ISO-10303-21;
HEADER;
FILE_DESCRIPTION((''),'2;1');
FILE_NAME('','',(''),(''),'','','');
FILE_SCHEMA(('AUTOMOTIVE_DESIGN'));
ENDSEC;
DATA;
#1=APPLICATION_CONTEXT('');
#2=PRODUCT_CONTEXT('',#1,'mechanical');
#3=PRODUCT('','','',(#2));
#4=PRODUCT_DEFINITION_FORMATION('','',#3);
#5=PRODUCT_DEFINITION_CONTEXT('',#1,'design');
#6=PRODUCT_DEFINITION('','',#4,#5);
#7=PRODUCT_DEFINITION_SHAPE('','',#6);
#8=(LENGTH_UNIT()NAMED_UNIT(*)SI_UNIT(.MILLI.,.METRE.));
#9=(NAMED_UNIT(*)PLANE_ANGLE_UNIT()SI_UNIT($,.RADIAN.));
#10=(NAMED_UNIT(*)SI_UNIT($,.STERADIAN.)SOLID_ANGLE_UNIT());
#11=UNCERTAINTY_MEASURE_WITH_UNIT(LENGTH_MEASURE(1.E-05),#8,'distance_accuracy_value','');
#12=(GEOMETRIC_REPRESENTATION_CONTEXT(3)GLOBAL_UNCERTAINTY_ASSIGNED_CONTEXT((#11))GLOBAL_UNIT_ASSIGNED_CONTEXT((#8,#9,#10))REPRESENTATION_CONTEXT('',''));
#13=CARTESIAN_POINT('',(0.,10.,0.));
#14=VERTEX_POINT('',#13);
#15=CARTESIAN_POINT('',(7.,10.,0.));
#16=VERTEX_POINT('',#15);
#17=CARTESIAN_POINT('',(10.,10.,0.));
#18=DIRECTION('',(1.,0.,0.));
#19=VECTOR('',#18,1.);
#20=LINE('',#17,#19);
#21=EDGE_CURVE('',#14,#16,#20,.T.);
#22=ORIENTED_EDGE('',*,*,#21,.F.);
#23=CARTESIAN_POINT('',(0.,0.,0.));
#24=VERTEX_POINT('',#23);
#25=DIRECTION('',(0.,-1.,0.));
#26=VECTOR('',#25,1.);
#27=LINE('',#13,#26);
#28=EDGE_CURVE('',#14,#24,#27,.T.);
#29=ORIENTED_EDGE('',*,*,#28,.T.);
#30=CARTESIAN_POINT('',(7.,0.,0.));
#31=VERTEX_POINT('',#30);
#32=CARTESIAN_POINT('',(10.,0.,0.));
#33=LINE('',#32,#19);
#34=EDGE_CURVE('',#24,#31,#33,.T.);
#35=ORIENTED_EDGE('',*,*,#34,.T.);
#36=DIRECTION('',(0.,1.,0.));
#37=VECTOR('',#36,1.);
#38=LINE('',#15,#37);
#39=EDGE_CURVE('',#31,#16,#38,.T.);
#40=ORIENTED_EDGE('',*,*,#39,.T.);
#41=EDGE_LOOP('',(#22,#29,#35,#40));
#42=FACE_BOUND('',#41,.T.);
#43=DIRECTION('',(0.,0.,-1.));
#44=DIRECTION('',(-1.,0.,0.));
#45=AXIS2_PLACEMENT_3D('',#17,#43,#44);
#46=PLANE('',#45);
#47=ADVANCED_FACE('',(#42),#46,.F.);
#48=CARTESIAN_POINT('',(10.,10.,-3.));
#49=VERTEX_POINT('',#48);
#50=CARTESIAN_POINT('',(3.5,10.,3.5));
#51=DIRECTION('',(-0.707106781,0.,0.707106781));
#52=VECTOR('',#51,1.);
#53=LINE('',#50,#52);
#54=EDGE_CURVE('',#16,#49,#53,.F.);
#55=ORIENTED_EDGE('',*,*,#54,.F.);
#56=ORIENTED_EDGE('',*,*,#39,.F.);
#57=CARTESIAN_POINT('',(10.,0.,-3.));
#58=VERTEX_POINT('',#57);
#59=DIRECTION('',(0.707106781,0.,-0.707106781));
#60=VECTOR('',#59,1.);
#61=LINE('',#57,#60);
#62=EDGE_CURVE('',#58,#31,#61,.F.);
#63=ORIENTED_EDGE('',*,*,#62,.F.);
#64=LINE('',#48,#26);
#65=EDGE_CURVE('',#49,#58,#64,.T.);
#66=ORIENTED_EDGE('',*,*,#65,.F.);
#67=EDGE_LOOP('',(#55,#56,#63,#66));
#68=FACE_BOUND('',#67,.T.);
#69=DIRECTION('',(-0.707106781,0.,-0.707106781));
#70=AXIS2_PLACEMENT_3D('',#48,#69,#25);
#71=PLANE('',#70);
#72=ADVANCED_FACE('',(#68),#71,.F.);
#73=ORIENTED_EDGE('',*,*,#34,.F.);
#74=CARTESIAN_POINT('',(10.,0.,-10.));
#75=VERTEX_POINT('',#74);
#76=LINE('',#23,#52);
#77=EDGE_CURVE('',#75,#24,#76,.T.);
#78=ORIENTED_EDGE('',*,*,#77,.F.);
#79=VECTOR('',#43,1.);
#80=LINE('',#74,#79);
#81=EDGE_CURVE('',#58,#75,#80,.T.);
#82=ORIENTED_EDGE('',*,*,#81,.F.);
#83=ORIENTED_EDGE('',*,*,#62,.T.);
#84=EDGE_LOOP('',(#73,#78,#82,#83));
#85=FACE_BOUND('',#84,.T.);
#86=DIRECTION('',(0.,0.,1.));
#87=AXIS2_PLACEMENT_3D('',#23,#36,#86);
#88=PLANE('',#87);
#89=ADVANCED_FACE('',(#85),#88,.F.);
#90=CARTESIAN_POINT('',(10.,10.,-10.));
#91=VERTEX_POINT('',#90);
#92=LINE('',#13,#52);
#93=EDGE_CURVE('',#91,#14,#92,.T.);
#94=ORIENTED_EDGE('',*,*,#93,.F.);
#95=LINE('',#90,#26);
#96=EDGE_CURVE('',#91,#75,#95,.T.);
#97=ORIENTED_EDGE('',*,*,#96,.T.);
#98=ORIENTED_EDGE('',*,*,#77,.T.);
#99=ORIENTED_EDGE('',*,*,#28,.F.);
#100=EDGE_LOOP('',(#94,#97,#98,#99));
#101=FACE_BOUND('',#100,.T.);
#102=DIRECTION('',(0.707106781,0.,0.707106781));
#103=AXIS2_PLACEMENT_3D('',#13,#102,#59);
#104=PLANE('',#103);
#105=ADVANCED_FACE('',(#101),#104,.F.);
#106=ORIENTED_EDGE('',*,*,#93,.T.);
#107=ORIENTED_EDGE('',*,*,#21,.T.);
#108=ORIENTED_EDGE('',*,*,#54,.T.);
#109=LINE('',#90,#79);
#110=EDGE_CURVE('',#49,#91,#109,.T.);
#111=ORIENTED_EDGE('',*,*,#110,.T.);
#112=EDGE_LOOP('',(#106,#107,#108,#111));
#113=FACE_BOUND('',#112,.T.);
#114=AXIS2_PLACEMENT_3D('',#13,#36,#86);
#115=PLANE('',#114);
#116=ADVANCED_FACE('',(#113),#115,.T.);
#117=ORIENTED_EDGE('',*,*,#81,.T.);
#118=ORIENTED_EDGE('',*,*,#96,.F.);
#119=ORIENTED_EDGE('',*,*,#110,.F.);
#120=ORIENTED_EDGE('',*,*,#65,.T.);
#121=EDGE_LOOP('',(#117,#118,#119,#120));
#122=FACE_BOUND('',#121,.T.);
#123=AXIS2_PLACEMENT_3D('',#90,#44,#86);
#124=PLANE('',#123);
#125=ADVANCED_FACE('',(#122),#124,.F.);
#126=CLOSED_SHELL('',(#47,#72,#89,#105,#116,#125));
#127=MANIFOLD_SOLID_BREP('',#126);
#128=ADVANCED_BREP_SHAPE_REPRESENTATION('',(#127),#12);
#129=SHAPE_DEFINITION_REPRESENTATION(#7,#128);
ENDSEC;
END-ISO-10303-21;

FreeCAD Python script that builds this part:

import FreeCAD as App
import Part
import Sketcher
from FreeCAD import Vector
Q = App.Units.Quantity


def edges_at(feature, points):
    """Names of the edges that pass closest to the given points."""
    edges = feature.Shape.Edges
    near = lambda p: min(range(len(edges)), key=lambda i: edges[i].distToShape(Part.Vertex(*p))[0])
    return sorted({f"Edge{near(p) + 1}" for p in points})

doc = App.newDocument("Part")
params = doc.addObject("Spreadsheet::Sheet", "Params")
for row, (alias, value) in enumerate([
    ("sketch1_width", "10 mm"),
    ("pad1_length", "10 mm"),
    ("chamfer_size", "3 mm"),
], start=1):
    params.set(f"A{row}", alias)
    params.set(f"B{row}", "=" + value)
    params.setAlias(f"B{row}", alias)

body = doc.addObject("PartDesign::Body", "Body")

# Sketch on XZ plane
sketch1 = body.newObject("Sketcher::SketchObject", "Sketch")
sketch1.AttachmentSupport = (doc.getObject("XZ_Plane"), [""])
sketch1.MapMode = "FlatFace"
sketch1.addGeometry([
    Part.LineSegment(Vector(10, -10, 0), Vector(0, 0, 0)),
    Part.LineSegment(Vector(0, 0, 0), Vector(10, 0, 0)),
    Part.LineSegment(Vector(10, 0, 0), Vector(10, -10, 0)),
], False)
sketch1.addConstraint([
    Sketcher.Constraint("Coincident", 0, 2, 1, 1),
    Sketcher.Constraint("Coincident", 1, 2, 2, 1),
    Sketcher.Constraint("Coincident", 2, 2, 0, 1),
    Sketcher.Constraint("Horizontal", 1),
    Sketcher.Constraint("Vertical", 2),
    Sketcher.Constraint("Coincident", 0, 2, -1, 1),
    Sketcher.Constraint("Equal", 1, 2),
    Sketcher.Constraint("DistanceX", 1, 1, 1, 2, Q("10 mm")),
])
sketch1.setExpression("Constraints[7]", "Params.sketch1_width")
pad1 = body.newObject("PartDesign::Pad", "Pad")
pad1.Profile = sketch1
pad1.setExpression("Length", "Params.pad1_length")
pad1.Reversed = True
doc.recompute()

chamfer = body.newObject("PartDesign::Chamfer", "Chamfer")
chamfer.Base = (pad1, edges_at(pad1, [(10, 5, 0)]))
chamfer.setExpression("Size", "Params.chamfer_size")

doc.recompute()
